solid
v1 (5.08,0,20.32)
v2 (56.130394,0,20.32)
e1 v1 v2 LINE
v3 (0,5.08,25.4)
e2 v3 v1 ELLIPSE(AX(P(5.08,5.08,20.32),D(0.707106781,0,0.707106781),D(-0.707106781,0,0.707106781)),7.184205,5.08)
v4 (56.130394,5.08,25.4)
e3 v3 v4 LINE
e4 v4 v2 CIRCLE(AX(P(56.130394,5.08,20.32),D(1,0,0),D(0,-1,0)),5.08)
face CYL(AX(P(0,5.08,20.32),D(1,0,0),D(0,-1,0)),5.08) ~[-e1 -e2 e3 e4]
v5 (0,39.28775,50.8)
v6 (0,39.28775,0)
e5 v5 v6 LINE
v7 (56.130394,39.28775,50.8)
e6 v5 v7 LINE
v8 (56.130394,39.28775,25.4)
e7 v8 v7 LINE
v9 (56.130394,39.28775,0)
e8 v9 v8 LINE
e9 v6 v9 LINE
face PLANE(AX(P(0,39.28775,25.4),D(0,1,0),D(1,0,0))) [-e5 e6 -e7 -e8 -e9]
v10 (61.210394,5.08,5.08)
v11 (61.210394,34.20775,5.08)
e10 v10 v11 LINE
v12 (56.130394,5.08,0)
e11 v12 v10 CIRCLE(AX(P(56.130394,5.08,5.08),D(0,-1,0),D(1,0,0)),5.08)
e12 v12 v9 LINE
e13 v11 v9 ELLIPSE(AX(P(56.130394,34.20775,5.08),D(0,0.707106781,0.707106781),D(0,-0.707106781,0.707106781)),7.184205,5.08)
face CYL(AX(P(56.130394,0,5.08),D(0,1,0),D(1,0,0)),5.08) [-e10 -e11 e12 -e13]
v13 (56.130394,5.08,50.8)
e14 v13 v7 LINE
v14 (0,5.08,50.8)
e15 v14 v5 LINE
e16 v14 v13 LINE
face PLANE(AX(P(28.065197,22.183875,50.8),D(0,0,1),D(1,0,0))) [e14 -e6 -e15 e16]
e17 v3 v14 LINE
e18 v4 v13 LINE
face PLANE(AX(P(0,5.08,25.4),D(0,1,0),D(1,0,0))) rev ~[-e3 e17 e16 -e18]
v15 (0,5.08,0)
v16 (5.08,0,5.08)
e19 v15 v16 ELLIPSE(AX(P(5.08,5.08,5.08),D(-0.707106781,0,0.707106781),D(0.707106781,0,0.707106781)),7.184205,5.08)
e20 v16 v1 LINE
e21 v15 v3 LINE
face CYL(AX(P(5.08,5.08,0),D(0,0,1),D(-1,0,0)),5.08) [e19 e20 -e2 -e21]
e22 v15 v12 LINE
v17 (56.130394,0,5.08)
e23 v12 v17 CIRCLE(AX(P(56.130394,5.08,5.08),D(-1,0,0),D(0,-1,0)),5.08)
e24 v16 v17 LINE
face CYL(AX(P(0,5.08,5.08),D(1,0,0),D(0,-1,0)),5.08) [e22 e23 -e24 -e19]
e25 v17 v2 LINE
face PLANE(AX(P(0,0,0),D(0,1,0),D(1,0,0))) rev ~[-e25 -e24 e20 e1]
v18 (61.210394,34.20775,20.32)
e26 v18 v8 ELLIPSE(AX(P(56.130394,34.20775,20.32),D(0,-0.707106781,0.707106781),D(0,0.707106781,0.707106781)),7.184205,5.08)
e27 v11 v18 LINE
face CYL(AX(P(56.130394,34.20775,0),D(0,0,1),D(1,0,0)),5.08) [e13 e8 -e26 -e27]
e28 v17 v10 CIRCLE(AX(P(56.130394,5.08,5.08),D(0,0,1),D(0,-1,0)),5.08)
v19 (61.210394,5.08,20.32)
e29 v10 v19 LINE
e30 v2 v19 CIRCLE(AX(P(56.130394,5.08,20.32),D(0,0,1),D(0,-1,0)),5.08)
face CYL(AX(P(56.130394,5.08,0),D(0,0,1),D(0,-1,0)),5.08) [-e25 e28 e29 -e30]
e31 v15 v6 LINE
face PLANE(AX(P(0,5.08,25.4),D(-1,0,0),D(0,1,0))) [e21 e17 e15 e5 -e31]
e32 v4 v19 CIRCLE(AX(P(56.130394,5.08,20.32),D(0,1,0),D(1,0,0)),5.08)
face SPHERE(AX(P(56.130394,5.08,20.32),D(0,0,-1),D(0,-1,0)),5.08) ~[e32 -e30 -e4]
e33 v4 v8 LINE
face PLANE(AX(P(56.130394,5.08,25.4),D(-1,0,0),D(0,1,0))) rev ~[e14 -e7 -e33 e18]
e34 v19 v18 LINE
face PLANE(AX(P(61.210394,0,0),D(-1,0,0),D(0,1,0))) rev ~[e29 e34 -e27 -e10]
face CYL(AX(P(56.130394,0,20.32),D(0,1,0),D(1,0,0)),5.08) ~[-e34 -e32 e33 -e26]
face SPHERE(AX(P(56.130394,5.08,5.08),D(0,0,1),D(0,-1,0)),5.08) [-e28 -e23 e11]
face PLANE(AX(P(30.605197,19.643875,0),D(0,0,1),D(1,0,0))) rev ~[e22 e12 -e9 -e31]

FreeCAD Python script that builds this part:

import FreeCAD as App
import Part
import Sketcher
from FreeCAD import Vector
Q = App.Units.Quantity


def edges_at(feature, points):
    """Names of the edges that pass closest to the given points."""
    edges = feature.Shape.Edges
    near = lambda p: min(range(len(edges)), key=lambda i: edges[i].distToShape(Part.Vertex(*p))[0])
    return sorted({f"Edge{near(p) + 1}" for p in points})

doc = App.newDocument("Part")
body = doc.addObject("PartDesign::Body", "Body")

sketch1 = doc.addObject("Sketcher::SketchObject", "Sketch")
body.addObject(sketch1)
sketch1.AttachmentSupport = (doc.XY_Plane, [""])
sketch1.MapMode = "FlatFace"
sketch1.addGeometry(Part.LineSegment(Vector(0, 39, 0), Vector(0, 0, 0)), False)
sketch1.addGeometry(Part.LineSegment(Vector(0, 0, 0), Vector(61, 0, 0)), False)
sketch1.addGeometry(Part.LineSegment(Vector(61, 0, 0), Vector(61, 39, 0)), False)
sketch1.addGeometry(Part.LineSegment(Vector(61, 39, 0), Vector(0, 39, 0)), False)
sketch1.addConstraint(Sketcher.Constraint("Coincident", 0, 2, 1, 1))
sketch1.addConstraint(Sketcher.Constraint("Coincident", 1, 2, 2, 1))
sketch1.addConstraint(Sketcher.Constraint("Coincident", 2, 2, 3, 1))
sketch1.addConstraint(Sketcher.Constraint("Coincident", 3, 2, 0, 1))
sketch1.addConstraint(Sketcher.Constraint("Vertical", 0))
sketch1.addConstraint(Sketcher.Constraint("Horizontal", 1))
sketch1.addConstraint(Sketcher.Constraint("Vertical", 2))
sketch1.addConstraint(Sketcher.Constraint("Horizontal", 3))
sketch1.addConstraint(Sketcher.Constraint("Coincident", 0, 2, -1, 1))
sketch1.addConstraint(Sketcher.Constraint("DistanceY", 0, 2, 0, 1, Q("39.28775 mm")))
sketch1.addConstraint(Sketcher.Constraint("DistanceX", 1, 1, 1, 2, Q("61.210394 mm")))
pad1 = doc.addObject("PartDesign::Pad", "Pad")
body.addObject(pad1)
pad1.Profile = sketch1
pad1.Length = Q("1 in")
doc.recompute()

fillet = doc.addObject("PartDesign::Fillet", "Fillet")
body.addObject(fillet)
fillet.Base = (pad1, edges_at(pad1, [
    (0, 0, 12.7),
    (61.21, 0, 12.7),
    (30.605, 0, 0),
    (30.605, 0, 25.4),
    (61.21, 19.644, 25.4),
    (61.21, 39.288, 12.7),
    (61.21, 19.644, 0),
]))
fillet.Radius = Q("0.2 in")

sketch2 = doc.addObject("Sketcher::SketchObject", "Sketch001")
body.addObject(sketch2)
sketch2.AttachmentSupport = (doc.XY_Plane, [""])
sketch2.MapMode = "FlatFace"
sketch2.AttachmentOffset = App.Placement(Vector(0, 0, 1 * 25.4), App.Rotation())
sketch2.addGeometry(Part.LineSegment(Vector(0, 39, 0), Vector(0, 5, 0)), False)
sketch2.addGeometry(Part.LineSegment(Vector(0, 5, 0), Vector(56, 5, 0)), False)
sketch2.addGeometry(Part.LineSegment(Vector(56, 5, 0), Vector(56, 39, 0)), False)
sketch2.addGeometry(Part.LineSegment(Vector(56, 39, 0), Vector(0, 39, 0)), False)
sketch2.addConstraint(Sketcher.Constraint("Coincident", 0, 2, 1, 1))
sketch2.addConstraint(Sketcher.Constraint("Coincident", 1, 2, 2, 1))
sketch2.addConstraint(Sketcher.Constraint("Coincident", 2, 2, 3, 1))
sketch2.addConstraint(Sketcher.Constraint("Coincident", 3, 2, 0, 1))
sketch2.addConstraint(Sketcher.Constraint("Vertical", 0))
sketch2.addConstraint(Sketcher.Constraint("Horizontal", 1))
sketch2.addConstraint(Sketcher.Constraint("Vertical", 2))
sketch2.addConstraint(Sketcher.Constraint("Horizontal", 3))
sketch2.addConstraint(Sketcher.Constraint("PointOnObject", 0, 2, -2))
sketch2.addConstraint(Sketcher.Constraint("DistanceY", -1, 1, 0, 2, Q("0.2 in")))
sketch2.addConstraint(Sketcher.Constraint("DistanceY", 0, 2, 0, 1, Q("34.20775 mm")))
sketch2.addConstraint(Sketcher.Constraint("DistanceX", 1, 1, 1, 2, Q("56.130394 mm")))
pad2 = doc.addObject("PartDesign::Pad", "Pad001")
body.addObject(pad2)
pad2.Profile = sketch2
pad2.Length = Q("1 in")

doc.recompute()
